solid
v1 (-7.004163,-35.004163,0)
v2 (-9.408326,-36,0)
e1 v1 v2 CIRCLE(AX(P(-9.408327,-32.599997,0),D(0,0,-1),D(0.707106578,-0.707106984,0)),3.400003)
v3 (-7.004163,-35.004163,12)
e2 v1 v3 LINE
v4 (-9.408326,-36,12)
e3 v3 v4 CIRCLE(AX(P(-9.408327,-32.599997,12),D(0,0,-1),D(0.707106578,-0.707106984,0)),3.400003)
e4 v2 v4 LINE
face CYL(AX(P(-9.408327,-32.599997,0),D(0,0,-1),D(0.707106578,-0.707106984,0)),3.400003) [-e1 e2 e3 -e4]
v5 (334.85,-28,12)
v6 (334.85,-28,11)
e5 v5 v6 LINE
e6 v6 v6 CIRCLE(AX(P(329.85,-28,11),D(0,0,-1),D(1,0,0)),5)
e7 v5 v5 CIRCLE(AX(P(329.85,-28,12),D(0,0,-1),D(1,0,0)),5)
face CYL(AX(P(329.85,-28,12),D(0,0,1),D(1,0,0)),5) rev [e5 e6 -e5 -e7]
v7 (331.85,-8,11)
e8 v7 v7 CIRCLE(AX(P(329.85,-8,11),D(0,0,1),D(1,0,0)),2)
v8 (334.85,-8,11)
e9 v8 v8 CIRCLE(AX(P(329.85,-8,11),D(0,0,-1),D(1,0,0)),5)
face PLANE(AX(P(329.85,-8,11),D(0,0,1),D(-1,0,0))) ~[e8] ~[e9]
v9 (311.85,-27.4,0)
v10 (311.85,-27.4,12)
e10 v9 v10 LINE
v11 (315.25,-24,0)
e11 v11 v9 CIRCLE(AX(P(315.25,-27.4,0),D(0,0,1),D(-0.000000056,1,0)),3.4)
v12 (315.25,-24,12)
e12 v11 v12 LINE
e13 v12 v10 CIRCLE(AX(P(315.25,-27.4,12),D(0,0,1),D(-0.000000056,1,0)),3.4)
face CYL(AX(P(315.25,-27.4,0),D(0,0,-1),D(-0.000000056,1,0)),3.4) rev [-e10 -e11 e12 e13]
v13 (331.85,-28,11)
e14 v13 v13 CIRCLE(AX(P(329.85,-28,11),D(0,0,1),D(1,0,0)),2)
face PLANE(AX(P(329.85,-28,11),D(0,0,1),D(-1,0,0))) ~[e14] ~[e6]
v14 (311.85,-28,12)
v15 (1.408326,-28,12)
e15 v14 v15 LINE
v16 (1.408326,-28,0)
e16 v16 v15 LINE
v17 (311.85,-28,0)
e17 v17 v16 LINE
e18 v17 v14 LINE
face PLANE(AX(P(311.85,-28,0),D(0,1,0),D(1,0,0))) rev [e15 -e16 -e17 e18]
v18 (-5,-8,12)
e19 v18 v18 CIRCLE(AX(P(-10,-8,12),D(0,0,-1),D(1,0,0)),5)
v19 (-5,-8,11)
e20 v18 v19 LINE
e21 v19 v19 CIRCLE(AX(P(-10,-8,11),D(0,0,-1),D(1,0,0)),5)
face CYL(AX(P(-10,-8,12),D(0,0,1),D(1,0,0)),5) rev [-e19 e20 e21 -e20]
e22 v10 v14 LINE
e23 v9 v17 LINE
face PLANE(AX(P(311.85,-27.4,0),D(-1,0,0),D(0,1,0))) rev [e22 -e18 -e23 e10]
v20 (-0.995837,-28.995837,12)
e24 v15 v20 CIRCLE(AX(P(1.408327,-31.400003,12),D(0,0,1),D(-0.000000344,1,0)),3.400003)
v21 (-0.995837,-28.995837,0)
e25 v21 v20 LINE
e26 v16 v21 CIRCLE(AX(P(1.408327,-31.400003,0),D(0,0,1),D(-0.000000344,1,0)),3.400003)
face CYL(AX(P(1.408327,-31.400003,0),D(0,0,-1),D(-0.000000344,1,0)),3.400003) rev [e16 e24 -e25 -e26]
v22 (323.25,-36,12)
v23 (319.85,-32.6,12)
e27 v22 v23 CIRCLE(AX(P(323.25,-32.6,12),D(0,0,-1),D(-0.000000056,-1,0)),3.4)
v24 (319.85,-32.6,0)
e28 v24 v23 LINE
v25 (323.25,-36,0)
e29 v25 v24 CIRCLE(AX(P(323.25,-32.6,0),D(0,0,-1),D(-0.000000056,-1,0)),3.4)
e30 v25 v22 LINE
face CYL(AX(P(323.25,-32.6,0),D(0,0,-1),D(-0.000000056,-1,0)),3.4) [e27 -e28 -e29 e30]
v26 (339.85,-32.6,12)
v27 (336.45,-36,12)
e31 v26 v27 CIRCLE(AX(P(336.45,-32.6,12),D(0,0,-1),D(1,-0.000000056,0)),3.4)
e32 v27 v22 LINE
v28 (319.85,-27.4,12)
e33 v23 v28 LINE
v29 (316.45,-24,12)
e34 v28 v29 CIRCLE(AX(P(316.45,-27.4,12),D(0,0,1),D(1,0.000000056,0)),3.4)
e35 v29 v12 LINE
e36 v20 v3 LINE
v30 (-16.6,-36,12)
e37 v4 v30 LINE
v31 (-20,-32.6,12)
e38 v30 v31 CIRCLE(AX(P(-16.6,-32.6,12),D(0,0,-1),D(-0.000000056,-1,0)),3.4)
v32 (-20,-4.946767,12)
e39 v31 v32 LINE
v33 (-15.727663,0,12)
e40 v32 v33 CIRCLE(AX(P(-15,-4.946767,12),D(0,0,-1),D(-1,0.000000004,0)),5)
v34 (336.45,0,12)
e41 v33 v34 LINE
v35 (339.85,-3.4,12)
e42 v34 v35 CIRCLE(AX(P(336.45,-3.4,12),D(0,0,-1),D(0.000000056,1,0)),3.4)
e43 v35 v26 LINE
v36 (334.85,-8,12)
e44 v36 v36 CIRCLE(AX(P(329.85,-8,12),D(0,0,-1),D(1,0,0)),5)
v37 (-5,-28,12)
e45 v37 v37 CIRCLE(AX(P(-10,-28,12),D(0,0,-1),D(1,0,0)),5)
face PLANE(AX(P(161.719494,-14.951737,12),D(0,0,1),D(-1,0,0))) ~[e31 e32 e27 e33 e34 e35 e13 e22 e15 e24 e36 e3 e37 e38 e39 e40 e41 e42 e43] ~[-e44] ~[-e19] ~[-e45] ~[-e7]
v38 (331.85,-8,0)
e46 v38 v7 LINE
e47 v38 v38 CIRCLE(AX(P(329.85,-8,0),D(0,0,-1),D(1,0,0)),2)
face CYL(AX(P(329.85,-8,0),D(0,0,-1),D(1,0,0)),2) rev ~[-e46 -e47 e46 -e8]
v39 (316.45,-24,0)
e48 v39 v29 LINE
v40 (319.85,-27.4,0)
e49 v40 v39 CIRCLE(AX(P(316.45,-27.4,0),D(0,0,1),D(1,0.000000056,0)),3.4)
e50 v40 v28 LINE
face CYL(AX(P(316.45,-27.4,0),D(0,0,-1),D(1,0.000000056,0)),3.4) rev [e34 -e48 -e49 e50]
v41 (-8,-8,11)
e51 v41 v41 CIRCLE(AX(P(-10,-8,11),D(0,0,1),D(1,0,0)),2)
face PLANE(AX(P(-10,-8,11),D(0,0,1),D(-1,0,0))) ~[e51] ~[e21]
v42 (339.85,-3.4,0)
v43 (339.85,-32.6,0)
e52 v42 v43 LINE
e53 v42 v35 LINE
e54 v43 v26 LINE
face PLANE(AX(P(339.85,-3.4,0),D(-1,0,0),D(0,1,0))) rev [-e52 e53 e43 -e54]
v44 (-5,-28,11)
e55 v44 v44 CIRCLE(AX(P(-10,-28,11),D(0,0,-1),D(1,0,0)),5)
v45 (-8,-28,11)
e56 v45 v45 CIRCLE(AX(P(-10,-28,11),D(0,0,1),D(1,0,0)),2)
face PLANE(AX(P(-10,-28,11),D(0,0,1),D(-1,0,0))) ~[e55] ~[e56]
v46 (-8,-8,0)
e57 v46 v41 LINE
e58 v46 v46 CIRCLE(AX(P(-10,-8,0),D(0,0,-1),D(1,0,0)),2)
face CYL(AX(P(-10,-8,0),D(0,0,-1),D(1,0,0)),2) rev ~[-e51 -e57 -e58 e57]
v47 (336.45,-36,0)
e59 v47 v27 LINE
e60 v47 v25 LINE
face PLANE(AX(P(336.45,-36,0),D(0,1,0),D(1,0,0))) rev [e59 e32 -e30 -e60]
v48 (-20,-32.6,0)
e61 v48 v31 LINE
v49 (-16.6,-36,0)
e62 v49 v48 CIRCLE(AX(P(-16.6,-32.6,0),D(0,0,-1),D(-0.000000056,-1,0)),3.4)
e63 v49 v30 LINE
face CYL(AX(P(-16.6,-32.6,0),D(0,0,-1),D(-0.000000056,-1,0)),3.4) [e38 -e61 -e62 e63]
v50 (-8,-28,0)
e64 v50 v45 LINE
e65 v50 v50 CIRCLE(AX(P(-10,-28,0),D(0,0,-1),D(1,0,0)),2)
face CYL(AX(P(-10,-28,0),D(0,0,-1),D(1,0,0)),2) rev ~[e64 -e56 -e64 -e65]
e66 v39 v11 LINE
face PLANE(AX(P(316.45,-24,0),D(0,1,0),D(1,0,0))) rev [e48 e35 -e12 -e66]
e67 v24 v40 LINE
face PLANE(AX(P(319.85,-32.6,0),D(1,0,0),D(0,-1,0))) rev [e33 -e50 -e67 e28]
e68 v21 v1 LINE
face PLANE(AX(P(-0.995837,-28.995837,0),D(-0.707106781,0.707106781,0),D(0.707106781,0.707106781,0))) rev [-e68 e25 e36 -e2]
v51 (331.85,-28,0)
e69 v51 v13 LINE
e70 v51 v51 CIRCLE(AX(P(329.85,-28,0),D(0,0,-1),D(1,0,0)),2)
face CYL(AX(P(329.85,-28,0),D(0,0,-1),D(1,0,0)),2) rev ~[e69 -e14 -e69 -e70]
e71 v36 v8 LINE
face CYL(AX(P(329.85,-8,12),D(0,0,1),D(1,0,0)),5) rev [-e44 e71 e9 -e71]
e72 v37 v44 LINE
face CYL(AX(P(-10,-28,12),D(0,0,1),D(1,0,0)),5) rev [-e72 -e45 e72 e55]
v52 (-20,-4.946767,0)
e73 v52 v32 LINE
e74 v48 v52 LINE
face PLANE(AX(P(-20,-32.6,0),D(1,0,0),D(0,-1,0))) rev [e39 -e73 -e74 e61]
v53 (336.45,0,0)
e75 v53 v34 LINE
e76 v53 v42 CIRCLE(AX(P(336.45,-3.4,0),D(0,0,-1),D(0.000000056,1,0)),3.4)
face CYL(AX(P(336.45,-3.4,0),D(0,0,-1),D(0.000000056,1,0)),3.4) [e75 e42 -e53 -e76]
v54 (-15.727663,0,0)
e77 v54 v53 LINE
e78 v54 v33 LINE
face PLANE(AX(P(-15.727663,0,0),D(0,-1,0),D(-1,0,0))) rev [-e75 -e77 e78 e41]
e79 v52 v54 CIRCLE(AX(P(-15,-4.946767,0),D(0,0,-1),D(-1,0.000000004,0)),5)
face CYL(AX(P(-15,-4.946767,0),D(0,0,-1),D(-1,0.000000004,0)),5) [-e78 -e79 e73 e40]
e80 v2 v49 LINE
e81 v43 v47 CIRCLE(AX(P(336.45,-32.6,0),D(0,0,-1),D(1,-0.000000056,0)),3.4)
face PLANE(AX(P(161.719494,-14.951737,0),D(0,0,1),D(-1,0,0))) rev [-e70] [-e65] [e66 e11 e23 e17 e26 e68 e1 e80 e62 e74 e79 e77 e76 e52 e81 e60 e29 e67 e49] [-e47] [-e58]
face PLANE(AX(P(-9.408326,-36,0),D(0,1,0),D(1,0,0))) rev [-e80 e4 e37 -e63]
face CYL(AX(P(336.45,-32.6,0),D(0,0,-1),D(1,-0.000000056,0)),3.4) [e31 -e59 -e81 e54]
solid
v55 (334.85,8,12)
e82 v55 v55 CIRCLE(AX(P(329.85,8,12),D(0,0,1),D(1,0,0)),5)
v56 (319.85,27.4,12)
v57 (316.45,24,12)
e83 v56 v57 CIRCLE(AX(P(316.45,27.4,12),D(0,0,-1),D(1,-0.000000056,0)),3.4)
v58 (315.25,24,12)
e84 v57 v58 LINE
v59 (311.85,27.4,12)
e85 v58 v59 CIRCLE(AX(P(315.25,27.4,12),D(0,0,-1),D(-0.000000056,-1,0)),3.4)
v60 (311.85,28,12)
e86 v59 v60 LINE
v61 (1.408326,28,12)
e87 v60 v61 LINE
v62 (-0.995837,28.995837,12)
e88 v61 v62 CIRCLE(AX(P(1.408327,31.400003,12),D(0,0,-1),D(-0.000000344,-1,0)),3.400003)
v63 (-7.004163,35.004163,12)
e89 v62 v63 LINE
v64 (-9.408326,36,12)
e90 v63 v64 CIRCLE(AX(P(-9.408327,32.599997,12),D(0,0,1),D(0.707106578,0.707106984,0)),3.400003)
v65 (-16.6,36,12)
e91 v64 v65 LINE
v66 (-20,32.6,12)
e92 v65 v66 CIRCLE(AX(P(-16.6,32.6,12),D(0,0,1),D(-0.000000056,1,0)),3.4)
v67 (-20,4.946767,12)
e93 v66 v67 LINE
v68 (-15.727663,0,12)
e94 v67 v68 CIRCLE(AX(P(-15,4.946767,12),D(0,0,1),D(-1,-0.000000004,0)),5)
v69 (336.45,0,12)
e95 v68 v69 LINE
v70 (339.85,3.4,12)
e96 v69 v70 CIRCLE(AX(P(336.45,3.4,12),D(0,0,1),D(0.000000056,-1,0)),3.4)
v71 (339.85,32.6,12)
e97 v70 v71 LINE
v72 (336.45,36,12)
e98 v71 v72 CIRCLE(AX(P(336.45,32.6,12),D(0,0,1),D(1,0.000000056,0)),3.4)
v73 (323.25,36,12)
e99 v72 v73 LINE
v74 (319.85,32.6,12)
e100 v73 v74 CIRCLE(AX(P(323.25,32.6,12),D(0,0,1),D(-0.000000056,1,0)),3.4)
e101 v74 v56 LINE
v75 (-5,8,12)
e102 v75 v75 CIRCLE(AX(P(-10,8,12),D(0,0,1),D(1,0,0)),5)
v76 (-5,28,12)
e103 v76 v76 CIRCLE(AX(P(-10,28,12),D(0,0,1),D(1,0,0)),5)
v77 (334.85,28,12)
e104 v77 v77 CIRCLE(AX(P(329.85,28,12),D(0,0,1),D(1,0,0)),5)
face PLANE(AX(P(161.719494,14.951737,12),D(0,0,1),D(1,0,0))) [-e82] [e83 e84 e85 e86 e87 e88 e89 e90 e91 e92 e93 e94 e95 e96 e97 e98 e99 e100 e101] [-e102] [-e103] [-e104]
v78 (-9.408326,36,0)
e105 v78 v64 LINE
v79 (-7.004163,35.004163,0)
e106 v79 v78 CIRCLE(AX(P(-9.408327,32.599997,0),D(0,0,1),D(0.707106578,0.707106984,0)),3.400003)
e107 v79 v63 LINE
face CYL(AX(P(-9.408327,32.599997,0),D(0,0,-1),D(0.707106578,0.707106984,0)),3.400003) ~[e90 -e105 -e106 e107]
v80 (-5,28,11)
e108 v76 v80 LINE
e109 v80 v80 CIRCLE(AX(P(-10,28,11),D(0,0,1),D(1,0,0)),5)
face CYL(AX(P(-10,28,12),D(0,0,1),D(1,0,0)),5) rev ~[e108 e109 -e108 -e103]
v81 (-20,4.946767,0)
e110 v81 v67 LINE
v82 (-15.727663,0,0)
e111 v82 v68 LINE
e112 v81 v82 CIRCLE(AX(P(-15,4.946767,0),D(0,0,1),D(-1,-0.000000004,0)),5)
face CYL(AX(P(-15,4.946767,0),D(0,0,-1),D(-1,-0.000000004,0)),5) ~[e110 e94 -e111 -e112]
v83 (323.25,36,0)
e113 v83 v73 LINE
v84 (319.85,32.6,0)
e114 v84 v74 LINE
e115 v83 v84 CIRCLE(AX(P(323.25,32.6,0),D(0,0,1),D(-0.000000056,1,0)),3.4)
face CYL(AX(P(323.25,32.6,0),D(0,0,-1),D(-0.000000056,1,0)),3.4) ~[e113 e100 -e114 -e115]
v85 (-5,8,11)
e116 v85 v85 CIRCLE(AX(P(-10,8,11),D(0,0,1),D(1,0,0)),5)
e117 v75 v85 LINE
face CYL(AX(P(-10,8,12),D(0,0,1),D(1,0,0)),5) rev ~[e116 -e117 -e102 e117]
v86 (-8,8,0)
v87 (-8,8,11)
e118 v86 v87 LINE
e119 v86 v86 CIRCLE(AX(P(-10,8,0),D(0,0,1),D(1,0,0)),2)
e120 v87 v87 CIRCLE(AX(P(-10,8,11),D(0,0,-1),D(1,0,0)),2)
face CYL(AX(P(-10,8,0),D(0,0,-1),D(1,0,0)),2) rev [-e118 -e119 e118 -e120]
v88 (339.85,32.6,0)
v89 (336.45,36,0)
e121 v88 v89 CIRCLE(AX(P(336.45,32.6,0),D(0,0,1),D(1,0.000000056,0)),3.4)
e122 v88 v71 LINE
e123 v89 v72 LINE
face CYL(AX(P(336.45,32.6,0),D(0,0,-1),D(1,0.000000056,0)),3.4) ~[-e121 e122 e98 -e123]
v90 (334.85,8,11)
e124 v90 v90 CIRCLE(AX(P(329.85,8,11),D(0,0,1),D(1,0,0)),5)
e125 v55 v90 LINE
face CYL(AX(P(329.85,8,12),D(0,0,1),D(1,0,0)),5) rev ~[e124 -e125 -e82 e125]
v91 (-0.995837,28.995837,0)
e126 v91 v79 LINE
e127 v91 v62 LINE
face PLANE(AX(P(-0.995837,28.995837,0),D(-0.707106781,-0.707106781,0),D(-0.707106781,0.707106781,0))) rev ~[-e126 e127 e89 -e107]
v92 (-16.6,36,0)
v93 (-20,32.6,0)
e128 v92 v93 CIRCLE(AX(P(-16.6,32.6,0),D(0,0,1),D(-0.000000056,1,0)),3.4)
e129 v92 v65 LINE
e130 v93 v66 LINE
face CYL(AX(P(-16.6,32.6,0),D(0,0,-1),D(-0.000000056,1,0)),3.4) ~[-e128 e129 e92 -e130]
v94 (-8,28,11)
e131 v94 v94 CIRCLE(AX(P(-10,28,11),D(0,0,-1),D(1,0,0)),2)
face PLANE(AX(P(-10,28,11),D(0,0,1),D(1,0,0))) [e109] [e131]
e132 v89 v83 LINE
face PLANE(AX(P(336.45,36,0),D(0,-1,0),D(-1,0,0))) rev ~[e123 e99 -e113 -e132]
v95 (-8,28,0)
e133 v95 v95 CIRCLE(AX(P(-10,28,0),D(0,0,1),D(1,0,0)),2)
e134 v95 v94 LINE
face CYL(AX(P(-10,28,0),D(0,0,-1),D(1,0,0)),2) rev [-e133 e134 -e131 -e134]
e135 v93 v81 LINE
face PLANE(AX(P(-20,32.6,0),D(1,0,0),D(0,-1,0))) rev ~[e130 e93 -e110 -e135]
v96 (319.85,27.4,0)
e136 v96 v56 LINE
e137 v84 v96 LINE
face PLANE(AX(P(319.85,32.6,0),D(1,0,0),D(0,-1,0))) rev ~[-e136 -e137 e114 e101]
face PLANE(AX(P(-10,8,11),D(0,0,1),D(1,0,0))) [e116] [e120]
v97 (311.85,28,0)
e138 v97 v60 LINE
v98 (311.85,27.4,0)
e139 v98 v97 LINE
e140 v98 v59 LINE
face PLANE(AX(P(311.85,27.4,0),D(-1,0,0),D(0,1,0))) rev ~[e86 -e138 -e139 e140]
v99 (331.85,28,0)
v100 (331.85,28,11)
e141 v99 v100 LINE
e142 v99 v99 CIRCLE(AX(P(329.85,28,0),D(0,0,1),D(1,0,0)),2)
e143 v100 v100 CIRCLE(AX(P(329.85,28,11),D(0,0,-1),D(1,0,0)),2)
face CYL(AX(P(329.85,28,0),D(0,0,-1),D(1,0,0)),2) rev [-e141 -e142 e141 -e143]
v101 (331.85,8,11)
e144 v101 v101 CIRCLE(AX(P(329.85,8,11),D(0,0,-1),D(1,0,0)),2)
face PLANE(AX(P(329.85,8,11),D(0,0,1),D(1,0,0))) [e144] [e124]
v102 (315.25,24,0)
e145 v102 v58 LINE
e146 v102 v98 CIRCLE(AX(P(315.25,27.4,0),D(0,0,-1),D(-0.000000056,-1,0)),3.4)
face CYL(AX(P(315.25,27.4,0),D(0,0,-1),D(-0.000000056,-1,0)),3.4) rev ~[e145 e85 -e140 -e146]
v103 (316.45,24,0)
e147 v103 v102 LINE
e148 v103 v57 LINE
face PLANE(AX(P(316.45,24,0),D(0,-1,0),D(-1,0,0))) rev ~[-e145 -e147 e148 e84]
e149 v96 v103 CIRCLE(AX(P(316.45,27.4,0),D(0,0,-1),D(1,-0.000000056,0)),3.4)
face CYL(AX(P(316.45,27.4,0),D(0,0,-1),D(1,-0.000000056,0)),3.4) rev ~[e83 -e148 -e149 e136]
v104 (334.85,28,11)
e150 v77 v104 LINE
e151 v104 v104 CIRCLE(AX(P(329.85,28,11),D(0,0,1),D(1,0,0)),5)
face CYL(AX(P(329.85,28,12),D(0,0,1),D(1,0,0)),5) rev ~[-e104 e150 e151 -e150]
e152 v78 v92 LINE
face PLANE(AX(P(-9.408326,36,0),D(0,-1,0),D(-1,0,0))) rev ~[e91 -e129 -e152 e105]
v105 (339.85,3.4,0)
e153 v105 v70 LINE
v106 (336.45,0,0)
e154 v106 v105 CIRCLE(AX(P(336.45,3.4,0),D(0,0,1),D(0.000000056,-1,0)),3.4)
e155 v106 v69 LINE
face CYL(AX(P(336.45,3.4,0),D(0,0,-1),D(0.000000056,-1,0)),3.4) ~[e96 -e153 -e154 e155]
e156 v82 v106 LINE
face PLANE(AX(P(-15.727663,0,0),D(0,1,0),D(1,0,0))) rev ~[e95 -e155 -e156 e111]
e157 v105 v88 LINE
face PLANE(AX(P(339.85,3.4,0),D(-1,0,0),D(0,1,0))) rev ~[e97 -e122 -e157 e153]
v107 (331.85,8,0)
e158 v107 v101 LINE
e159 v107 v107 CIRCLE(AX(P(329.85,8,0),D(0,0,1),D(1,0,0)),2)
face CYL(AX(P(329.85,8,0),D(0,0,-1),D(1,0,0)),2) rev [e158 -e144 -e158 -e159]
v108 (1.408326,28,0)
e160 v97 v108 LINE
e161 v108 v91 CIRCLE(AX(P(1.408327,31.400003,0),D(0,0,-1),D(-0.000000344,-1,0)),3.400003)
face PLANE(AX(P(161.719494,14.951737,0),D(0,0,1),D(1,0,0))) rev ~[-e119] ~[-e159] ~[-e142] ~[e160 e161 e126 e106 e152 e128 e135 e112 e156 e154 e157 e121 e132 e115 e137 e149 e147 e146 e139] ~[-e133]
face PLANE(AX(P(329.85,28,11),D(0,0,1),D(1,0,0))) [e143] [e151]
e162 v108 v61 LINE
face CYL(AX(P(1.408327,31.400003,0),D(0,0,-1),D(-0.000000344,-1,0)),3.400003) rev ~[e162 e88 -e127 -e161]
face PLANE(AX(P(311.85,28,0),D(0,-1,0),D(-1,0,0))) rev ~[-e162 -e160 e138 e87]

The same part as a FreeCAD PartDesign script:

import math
import FreeCAD as App
import Part
import Sketcher
from FreeCAD import Vector
Q = App.Units.Quantity

doc = App.newDocument("Part")
body = doc.addObject("PartDesign::Body", "Body")

sketch1 = body.newObject("Sketcher::SketchObject", "Sketch")
sketch1.AttachmentSupport = (doc.getObject("XY_Plane"), [""])
sketch1.MapMode = "FlatFace"
sketch1.addGeometry([
    Part.LineSegment(Vector(311.9, 28, 0), Vector(1.4, 28, 0)),
    Part.ArcOfCircle(Part.Circle(Vector(1.4, 31.4, 0), Vector(0, 0, 1), 3.4), math.radians(-135), math.radians(-90)),
    Part.LineSegment(Vector(-1, 29, 0), Vector(-7, 35, 0)),
    Part.ArcOfCircle(Part.Circle(Vector(-9.4, 32.6, 0), Vector(0, 0, 1), 3.4), math.radians(45), math.radians(90)),
    Part.LineSegment(Vector(-9.4, 36, 0), Vector(-16.6, 36, 0)),
    Part.ArcOfCircle(Part.Circle(Vector(-16.6, 32.6, 0), Vector(0, 0, 1), 3.4), math.radians(90), math.radians(180)),
    Part.LineSegment(Vector(-20, 32.6, 0), Vector(-20, 4.9, 0)),
    Part.ArcOfCircle(Part.Circle(Vector(-15, 4.9, 0), Vector(0, 0, 1), 5), math.radians(-180), math.radians(-98)),
    Part.LineSegment(Vector(-15.7, 0, 0), Vector(336.4, 0, 0)),
    Part.ArcOfCircle(Part.Circle(Vector(336.4, 3.4, 0), Vector(0, 0, 1), 3.4), math.radians(-90), math.radians(0)),
    Part.LineSegment(Vector(339.9, 3.4, 0), Vector(339.9, 32.6, 0)),
    Part.ArcOfCircle(Part.Circle(Vector(336.4, 32.6, 0), Vector(0, 0, 1), 3.4), math.radians(0), math.radians(90)),
    Part.LineSegment(Vector(336.4, 36, 0), Vector(323.2, 36, 0)),
    Part.ArcOfCircle(Part.Circle(Vector(323.3, 32.6, 0), Vector(0, 0, 1), 3.4), math.radians(90), math.radians(180)),
    Part.LineSegment(Vector(319.9, 32.6, 0), Vector(319.9, 27.4, 0)),
    Part.ArcOfCircle(Part.Circle(Vector(316.4, 27.4, 0), Vector(0, 0, 1), 3.4), math.radians(-90), math.radians(0)),
    Part.LineSegment(Vector(316.4, 24, 0), Vector(315.2, 24, 0)),
    Part.ArcOfCircle(Part.Circle(Vector(315.3, 27.4, 0), Vector(0, 0, 1), 3.4), math.radians(-180), math.radians(-90)),
    Part.LineSegment(Vector(311.9, 27.4, 0), Vector(311.9, 28, 0)),
    Part.Circle(Vector(-10, 8, 0), Vector(0, 0, 1), 2),
    Part.Circle(Vector(329.9, 8, 0), Vector(0, 0, 1), 2),
    Part.Circle(Vector(-10, 28, 0), Vector(0, 0, 1), 2),
    Part.Circle(Vector(329.9, 28, 0), Vector(0, 0, 1), 2),
], False)
sketch1.addConstraint([
    Sketcher.Constraint("Tangent", 0, 2, 1, 2),
    Sketcher.Constraint("Tangent", 1, 1, 2, 1),
    Sketcher.Constraint("Tangent", 2, 2, 3, 1),
    Sketcher.Constraint("Tangent", 3, 2, 4, 1),
    Sketcher.Constraint("Tangent", 4, 2, 5, 1),
    Sketcher.Constraint("Tangent", 5, 2, 6, 1),
    Sketcher.Constraint("Tangent", 6, 2, 7, 1),
    Sketcher.Constraint("Coincident", 7, 2, 8, 1),
    Sketcher.Constraint("Tangent", 8, 2, 9, 1),
    Sketcher.Constraint("Tangent", 9, 2, 10, 1),
    Sketcher.Constraint("Tangent", 10, 2, 11, 1),
    Sketcher.Constraint("Tangent", 11, 2, 12, 1),
    Sketcher.Constraint("Tangent", 12, 2, 13, 1),
    Sketcher.Constraint("Tangent", 13, 2, 14, 1),
    Sketcher.Constraint("Tangent", 14, 2, 15, 2),
    Sketcher.Constraint("Tangent", 15, 1, 16, 1),
    Sketcher.Constraint("Tangent", 16, 2, 17, 2),
    Sketcher.Constraint("Tangent", 17, 1, 18, 1),
    Sketcher.Constraint("Coincident", 18, 2, 0, 1),
    Sketcher.Constraint("Horizontal", 0),
    Sketcher.Constraint("Horizontal", 4),
    Sketcher.Constraint("Vertical", 6),
    Sketcher.Constraint("Horizontal", 8),
    Sketcher.Constraint("Vertical", 10),
    Sketcher.Constraint("Horizontal", 12),
    Sketcher.Constraint("Vertical", 14),
    Sketcher.Constraint("Horizontal", 16),
    Sketcher.Constraint("Vertical", 18),
    Sketcher.Constraint("Equal", 1, 3),
    Sketcher.Constraint("Equal", 5, 9),
    Sketcher.Constraint("Equal", 9, 11),
    Sketcher.Constraint("Equal", 11, 13),
    Sketcher.Constraint("Equal", 13, 15),
    Sketcher.Constraint("Equal", 15, 17),
    Sketcher.Constraint("Equal", 19, 20),
    Sketcher.Constraint("Equal", 20, 21),
    Sketcher.Constraint("Equal", 21, 22),
    Sketcher.Constraint("PointOnObject", 7, 2, -1),
    Sketcher.Constraint("Horizontal", 5, 3, 11, 3),
    Sketcher.Constraint("Horizontal", 19, 3, 20, 3),
    Sketcher.Constraint("Horizontal", 21, 3, 22, 3),
    Sketcher.Constraint("Horizontal", 22, 3, 0, 2),
    Sketcher.Constraint("Vertical", 19, 3, 21, 3),
    Sketcher.Constraint("Vertical", 20, 3, 22, 3),
    Sketcher.Constraint("Diameter", 19, Q("4 mm")),
    Sketcher.Constraint("Radius", 7, Q("5 mm")),
    Sketcher.Constraint("Radius", 5, Q("3.4 mm")),
    Sketcher.Constraint("Angle", 2, Q("135 deg")),
    Sketcher.Constraint("DistanceX", 12, 2, 12, 1, Q("13.2 mm")),
    Sketcher.Constraint("DistanceX", 16, 2, 16, 1, Q("1.2 mm")),
    Sketcher.Constraint("DistanceY", 10, 1, 10, 2, Q("29.2 mm")),
    Sketcher.Constraint("DistanceY", 14, 2, 14, 1, Q("5.2 mm")),
    Sketcher.Constraint("DistanceY", 18, 1, 18, 2, Q("0.6 mm")),
    Sketcher.Constraint("DistanceX", 7, 3, -1, 1, Q("15 mm")),
    Sketcher.Constraint("DistanceX", 19, 3, -1, 1, Q("10 mm")),
    Sketcher.Constraint("DistanceY", -1, 1, 19, 3, Q("8 mm")),
    Sketcher.Constraint("DistanceX", 20, 3, 9, 2, Q("10 mm")),
    Sketcher.Constraint("DistanceX", -1, 1, 9, 3, Q("336.45 mm")),
    Sketcher.Constraint("Radius", 1, Q("3.400003 mm")),
    Sketcher.Constraint("DistanceX", 0, 2, 0, 1, Q("310.441674 mm")),
    Sketcher.Constraint("DistanceX", 8, 1, 8, 2, Q("352.177663 mm")),
])
pad1 = body.newObject("PartDesign::Pad", "Pad")
pad1.Profile = sketch1
pad1.Length = 12

sketch2 = body.newObject("Sketcher::SketchObject", "Sketch001")
sketch2.AttachmentSupport = (doc.getObject("XY_Plane"), [""])
sketch2.MapMode = "FlatFace"
sketch2.AttachmentOffset = App.Placement(Vector(0, 0, 12), App.Rotation())
sketch2.addGeometry([
    Part.Circle(Vector(330, 28, 0), Vector(0, 0, 1), 5),
    Part.Circle(Vector(330, 8, 0), Vector(0, 0, 1), 5),
    Part.Circle(Vector(-10, 8, 0), Vector(0, 0, 1), 5),
    Part.Circle(Vector(-10, 28, 0), Vector(0, 0, 1), 5),
], False)
sketch2.addConstraint([
    Sketcher.Constraint("Equal", 0, 1),
    Sketcher.Constraint("Equal", 1, 2),
    Sketcher.Constraint("Equal", 2, 3),
    Sketcher.Constraint("Horizontal", 1, 3, 2, 3),
    Sketcher.Constraint("Horizontal", 0, 3, 3, 3),
    Sketcher.Constraint("Vertical", 0, 3, 1, 3),
    Sketcher.Constraint("Vertical", 2, 3, 3, 3),
    Sketcher.Constraint("Diameter", 0, Q("10 mm")),
    Sketcher.Constraint("DistanceY", -1, 1, 0, 3, Q("28 mm")),
    Sketcher.Constraint("DistanceY", -1, 1, 1, 3, Q("8 mm")),
    Sketcher.Constraint("DistanceX", 2, 3, -1, 1, Q("10 mm")),
    Sketcher.Constraint("DistanceX", -1, 1, 0, 3, Q("329.85 mm")),
])
pocket1 = body.newObject("PartDesign::Pocket", "Pocket")
pocket1.Profile = sketch2
pocket1.Length = 1
body2 = doc.addObject("PartDesign::Body", "Body001")
doc.recompute()

mirroring = doc.addObject("Part::Mirroring", "Mirroring")
mirroring.Source = body
mirroring.Base = Vector(0, 0, 0)
mirroring.Normal = Vector(0, -1, 0)
body2.BaseFeature = mirroring
doc.recompute()
mirroring.Visibility = False

doc.recompute()
